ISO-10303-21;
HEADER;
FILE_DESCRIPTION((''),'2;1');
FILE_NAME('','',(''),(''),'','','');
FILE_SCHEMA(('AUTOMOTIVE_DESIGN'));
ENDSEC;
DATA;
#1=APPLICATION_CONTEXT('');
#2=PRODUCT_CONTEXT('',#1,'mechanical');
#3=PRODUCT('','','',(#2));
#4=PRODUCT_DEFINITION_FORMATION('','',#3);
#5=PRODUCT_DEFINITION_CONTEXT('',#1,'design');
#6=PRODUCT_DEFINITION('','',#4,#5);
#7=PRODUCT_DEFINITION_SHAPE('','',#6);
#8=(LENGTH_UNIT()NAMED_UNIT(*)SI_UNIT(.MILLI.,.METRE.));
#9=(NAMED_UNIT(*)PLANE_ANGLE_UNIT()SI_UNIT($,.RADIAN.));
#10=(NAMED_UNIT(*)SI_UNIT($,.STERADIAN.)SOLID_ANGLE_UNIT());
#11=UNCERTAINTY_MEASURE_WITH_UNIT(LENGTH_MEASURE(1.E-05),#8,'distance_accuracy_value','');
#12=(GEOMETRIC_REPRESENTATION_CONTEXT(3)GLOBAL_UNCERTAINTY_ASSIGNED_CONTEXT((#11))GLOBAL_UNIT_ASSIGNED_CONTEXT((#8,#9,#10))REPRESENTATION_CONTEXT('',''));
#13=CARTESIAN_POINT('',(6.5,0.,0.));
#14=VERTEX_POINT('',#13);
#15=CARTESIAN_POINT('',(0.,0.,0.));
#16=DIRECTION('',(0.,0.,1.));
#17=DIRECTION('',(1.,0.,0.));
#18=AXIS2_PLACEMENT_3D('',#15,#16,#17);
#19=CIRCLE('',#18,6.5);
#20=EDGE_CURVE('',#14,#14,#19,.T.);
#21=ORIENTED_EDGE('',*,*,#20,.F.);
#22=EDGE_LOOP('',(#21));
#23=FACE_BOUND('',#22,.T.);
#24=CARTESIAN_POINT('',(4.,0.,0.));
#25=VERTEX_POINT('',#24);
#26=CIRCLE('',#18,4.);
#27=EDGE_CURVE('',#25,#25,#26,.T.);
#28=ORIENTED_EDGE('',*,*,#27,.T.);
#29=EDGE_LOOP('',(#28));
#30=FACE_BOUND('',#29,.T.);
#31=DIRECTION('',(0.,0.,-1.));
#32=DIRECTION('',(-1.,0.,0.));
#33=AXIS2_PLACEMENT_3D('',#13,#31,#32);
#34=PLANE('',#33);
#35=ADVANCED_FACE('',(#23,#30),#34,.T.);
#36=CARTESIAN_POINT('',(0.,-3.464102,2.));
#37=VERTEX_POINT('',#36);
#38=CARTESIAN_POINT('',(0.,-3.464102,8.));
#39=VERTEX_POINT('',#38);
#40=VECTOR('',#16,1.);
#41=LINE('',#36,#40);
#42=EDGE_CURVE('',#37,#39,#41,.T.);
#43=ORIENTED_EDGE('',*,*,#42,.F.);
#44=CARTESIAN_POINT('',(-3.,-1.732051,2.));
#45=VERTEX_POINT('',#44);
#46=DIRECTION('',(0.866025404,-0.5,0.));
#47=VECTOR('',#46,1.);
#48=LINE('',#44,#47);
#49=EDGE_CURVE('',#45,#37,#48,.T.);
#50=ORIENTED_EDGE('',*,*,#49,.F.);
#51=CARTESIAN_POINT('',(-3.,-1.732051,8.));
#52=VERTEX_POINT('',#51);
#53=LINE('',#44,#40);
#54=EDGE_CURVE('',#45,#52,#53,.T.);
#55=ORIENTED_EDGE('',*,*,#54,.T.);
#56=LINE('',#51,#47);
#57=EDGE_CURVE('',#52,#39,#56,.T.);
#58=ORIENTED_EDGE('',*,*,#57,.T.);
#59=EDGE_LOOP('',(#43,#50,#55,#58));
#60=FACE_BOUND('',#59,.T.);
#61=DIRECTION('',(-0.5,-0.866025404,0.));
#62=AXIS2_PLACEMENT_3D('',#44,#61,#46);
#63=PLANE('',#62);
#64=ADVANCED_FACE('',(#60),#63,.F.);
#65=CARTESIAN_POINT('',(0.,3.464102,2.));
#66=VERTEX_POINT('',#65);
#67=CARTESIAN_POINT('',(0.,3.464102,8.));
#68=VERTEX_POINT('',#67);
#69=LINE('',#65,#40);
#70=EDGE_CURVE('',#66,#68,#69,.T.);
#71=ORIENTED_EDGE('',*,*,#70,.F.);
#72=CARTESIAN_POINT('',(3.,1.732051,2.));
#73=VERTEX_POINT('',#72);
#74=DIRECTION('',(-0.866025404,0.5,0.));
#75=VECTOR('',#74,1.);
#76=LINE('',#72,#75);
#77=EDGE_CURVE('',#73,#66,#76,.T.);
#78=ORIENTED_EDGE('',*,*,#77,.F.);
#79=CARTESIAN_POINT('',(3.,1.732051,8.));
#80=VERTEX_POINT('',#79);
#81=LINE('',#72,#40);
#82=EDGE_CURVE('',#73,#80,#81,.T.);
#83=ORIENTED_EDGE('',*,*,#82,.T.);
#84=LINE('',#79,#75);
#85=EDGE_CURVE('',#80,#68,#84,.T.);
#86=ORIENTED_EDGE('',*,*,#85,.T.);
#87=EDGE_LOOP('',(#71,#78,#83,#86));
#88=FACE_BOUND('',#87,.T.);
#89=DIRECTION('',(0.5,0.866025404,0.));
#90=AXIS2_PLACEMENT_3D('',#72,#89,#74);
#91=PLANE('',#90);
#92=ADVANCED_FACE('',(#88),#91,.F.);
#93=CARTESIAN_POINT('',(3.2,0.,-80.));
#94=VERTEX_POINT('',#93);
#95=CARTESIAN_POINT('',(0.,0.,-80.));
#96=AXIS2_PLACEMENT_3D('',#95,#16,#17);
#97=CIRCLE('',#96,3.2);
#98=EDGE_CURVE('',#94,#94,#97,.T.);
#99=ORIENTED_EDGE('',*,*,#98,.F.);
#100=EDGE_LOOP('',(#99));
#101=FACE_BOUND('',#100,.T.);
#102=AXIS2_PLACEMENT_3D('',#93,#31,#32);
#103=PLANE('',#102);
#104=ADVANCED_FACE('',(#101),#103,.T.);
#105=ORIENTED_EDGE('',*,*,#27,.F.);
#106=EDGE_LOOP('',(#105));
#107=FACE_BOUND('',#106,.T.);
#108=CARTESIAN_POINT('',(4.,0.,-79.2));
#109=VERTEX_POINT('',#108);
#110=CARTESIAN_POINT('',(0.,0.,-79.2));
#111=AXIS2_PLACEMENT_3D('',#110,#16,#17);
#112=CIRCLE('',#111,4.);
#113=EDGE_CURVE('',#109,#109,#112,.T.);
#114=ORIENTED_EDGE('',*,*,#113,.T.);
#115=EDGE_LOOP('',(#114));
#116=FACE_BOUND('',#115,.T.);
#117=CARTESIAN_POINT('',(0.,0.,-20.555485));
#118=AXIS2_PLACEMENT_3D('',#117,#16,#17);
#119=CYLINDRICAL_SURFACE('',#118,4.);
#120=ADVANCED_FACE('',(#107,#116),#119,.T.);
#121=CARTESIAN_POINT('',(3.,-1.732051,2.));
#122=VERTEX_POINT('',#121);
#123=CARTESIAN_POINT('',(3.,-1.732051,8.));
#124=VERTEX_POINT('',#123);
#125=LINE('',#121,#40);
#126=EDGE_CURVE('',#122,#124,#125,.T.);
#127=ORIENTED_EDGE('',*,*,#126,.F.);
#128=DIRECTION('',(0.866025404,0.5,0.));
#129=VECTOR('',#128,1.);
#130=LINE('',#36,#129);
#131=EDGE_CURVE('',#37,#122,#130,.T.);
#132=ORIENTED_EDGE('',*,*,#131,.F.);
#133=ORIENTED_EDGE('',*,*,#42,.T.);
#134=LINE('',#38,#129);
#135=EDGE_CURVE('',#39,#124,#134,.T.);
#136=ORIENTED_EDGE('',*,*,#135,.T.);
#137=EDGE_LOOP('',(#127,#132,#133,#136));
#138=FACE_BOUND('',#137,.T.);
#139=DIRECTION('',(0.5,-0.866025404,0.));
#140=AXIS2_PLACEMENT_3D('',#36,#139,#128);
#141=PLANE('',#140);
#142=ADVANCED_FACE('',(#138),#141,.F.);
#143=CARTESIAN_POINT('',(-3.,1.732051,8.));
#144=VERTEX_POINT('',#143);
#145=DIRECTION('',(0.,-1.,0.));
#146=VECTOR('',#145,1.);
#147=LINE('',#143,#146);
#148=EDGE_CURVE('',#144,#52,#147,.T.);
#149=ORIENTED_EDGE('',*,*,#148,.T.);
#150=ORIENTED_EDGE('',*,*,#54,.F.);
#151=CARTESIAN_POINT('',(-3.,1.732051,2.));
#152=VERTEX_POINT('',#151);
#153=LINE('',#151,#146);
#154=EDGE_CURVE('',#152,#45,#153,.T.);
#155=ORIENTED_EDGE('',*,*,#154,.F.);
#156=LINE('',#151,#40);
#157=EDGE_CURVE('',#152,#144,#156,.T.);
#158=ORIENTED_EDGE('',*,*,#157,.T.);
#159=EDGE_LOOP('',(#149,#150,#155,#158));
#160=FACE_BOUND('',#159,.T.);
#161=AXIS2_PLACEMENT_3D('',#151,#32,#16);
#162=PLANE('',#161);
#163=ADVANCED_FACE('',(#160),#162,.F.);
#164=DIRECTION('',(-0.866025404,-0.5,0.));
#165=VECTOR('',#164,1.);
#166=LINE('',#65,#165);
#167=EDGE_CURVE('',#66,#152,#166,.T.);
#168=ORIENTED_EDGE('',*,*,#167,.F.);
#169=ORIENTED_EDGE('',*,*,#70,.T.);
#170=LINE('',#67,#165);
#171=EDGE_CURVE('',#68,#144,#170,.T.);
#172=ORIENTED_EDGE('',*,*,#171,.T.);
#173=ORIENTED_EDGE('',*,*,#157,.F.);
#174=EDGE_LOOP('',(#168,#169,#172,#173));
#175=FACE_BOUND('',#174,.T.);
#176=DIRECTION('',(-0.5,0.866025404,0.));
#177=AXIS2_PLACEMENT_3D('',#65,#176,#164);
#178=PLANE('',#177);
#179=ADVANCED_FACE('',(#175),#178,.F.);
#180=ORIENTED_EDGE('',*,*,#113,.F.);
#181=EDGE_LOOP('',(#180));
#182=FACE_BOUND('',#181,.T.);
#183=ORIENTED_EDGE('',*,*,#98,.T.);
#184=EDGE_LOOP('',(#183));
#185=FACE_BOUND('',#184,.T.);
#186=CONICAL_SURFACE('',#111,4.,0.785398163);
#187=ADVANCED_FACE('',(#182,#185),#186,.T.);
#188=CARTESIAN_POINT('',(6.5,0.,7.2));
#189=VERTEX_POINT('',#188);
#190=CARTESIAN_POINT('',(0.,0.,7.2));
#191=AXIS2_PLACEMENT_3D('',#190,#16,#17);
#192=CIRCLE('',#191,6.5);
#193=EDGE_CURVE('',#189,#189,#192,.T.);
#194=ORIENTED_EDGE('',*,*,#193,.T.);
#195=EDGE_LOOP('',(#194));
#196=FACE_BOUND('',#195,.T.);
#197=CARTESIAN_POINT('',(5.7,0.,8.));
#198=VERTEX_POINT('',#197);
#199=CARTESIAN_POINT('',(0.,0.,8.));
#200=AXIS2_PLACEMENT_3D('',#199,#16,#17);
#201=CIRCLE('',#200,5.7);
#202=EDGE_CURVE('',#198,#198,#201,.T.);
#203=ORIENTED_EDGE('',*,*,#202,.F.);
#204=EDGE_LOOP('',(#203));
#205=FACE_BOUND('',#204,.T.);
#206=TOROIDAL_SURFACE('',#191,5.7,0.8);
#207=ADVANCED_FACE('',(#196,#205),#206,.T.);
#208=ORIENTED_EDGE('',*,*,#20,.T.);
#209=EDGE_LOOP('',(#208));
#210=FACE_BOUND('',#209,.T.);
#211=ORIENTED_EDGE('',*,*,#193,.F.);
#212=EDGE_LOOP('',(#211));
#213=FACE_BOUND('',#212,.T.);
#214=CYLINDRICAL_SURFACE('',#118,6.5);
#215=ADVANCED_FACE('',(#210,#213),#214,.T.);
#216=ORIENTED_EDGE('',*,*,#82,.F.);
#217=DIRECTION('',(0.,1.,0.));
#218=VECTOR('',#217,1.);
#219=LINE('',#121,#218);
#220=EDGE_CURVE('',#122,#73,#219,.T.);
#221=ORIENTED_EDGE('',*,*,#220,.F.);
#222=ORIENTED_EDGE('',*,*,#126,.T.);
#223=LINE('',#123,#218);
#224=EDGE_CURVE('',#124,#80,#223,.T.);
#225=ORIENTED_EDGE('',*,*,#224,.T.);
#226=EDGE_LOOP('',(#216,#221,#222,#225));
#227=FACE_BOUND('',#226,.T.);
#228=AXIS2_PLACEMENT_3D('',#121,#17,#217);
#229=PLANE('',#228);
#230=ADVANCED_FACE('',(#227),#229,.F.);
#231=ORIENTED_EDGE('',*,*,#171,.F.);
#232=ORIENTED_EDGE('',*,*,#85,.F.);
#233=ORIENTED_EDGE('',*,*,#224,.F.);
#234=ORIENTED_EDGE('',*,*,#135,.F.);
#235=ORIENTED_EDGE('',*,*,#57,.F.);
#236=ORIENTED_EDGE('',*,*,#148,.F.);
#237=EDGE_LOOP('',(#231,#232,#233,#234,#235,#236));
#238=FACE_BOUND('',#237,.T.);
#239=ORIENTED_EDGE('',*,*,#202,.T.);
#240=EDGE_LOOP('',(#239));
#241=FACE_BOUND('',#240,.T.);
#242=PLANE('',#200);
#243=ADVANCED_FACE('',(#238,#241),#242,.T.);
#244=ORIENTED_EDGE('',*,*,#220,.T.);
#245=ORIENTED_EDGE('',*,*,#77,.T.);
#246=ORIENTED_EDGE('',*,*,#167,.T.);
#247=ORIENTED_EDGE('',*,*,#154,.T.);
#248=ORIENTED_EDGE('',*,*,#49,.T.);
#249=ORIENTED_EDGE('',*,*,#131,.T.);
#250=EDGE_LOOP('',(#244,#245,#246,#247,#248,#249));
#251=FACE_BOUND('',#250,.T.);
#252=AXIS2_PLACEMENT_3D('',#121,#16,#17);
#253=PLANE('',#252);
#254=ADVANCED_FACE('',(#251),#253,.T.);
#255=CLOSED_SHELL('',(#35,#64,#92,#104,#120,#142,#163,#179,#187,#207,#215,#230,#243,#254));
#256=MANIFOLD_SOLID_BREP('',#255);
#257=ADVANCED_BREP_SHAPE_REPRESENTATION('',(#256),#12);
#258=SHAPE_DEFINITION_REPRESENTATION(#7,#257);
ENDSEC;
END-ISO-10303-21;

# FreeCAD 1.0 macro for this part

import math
import FreeCAD as App
import Part
import Sketcher
Q = App.Units.Quantity


def add_polygon(sketch, points):
    """Adds a closed chain of lines whose ends are joined by coincident constraints."""
    first, n = sketch.GeometryCount, len(points)
    for a, b in zip(points, points[1:] + points[:1]):
        sketch.addGeometry(Part.LineSegment(App.Vector(*a, 0), App.Vector(*b, 0)), False)
    for i in range(n):
        sketch.addConstraint(Sketcher.Constraint("Coincident", first + i, 2, first + (i + 1) % n, 1))

doc = App.newDocument("Part")
body = doc.addObject("PartDesign::Body", "Body")

sketch1 = body.newObject("Sketcher::SketchObject", "Sketch")
sketch1.AttachmentSupport = (doc.getObject("XZ_Plane"), [""])
sketch1.MapMode = "FlatFace"
sketch1.addGeometry(Part.LineSegment(App.Vector(0, -80, 0), App.Vector(0, 8, 0)), False)
sketch1.addGeometry(Part.LineSegment(App.Vector(0, 8, 0), App.Vector(5.7, 8, 0)), False)
sketch1.addGeometry(Part.ArcOfCircle(Part.Circle(App.Vector(5.7, 7.2, 0), App.Vector(0, 0, 1), 0.8), math.radians(0), math.radians(90)), False)
sketch1.addGeometry(Part.LineSegment(App.Vector(6.5, 7.2, 0), App.Vector(6.5, 0, 0)), False)
sketch1.addGeometry(Part.LineSegment(App.Vector(6.5, 0, 0), App.Vector(4, 0, 0)), False)
sketch1.addGeometry(Part.LineSegment(App.Vector(4, 0, 0), App.Vector(4, -79.2, 0)), False)
sketch1.addGeometry(Part.LineSegment(App.Vector(4, -79.2, 0), App.Vector(3.2, -80, 0)), False)
sketch1.addGeometry(Part.LineSegment(App.Vector(3.2, -80, 0), App.Vector(0, -80, 0)), False)
sketch1.addConstraint(Sketcher.Constraint("Coincident", 0, 2, 1, 1))
sketch1.addConstraint(Sketcher.Constraint("Tangent", 1, 2, 2, 2))
sketch1.addConstraint(Sketcher.Constraint("Tangent", 2, 1, 3, 1))
sketch1.addConstraint(Sketcher.Constraint("Coincident", 3, 2, 4, 1))
sketch1.addConstraint(Sketcher.Constraint("Coincident", 4, 2, 5, 1))
sketch1.addConstraint(Sketcher.Constraint("Coincident", 5, 2, 6, 1))
sketch1.addConstraint(Sketcher.Constraint("Coincident", 6, 2, 7, 1))
sketch1.addConstraint(Sketcher.Constraint("Coincident", 7, 2, 0, 1))
sketch1.addConstraint(Sketcher.Constraint("Vertical", 0))
sketch1.addConstraint(Sketcher.Constraint("Horizontal", 1))
sketch1.addConstraint(Sketcher.Constraint("Vertical", 3))
sketch1.addConstraint(Sketcher.Constraint("Horizontal", 4))
sketch1.addConstraint(Sketcher.Constraint("Vertical", 5))
sketch1.addConstraint(Sketcher.Constraint("Horizontal", 7))
sketch1.addConstraint(Sketcher.Constraint("PointOnObject", 0, 2, -2))
sketch1.addConstraint(Sketcher.Constraint("PointOnObject", 3, 2, -1))
sketch1.addConstraint(Sketcher.Constraint("Radius", 2, 0.8))
sketch1.addConstraint(Sketcher.Constraint("DistanceY", 0, 1, 0, 2, 88.0))
sketch1.addConstraint(Sketcher.Constraint("Angle", 6, Q("-135 deg")))
sketch1.addConstraint(Sketcher.Constraint("DistanceX", 1, 1, 1, 2, 5.7))
sketch1.addConstraint(Sketcher.Constraint("DistanceX", 4, 2, 4, 1, 2.5))
sketch1.addConstraint(Sketcher.Constraint("DistanceX", 7, 2, 7, 1, 3.2))
sketch1.addConstraint(Sketcher.Constraint("DistanceY", 3, 2, 3, 1, 7.2))
revolution = body.newObject("PartDesign::Revolution", "Revolution")
revolution.Profile = sketch1
revolution.ReferenceAxis = (sketch1, ["V_Axis"])
revolution.Angle = 360

sketch2 = body.newObject("Sketcher::SketchObject", "Sketch001")
sketch2.AttachmentSupport = (doc.getObject("XY_Plane"), [""])
sketch2.MapMode = "FlatFace"
sketch2.AttachmentOffset = App.Placement(App.Vector(0, 0, 8), App.Rotation())
add_polygon(sketch2, [(3, -1.7), (3, 1.7), (0, 3.5), (-3, 1.7), (-3, -1.7), (0, -3.5)])
sketch2.addConstraint(Sketcher.Constraint("Vertical", 0))
sketch2.addConstraint(Sketcher.Constraint("Vertical", 3))
sketch2.addConstraint(Sketcher.Constraint("Symmetric", 0, 2, 3, 2, -1, 1))
sketch2.addConstraint(Sketcher.Constraint("Symmetric", 1, 2, 4, 2, -1, 1))
sketch2.addConstraint(Sketcher.Constraint("PointOnObject", 1, 2, -2))
sketch2.addConstraint(Sketcher.Constraint("Parallel", 2, 5))
sketch2.addConstraint(Sketcher.Constraint("Horizontal", 0, 2, 2, 2))
sketch2.addConstraint(Sketcher.Constraint("Angle", 1, Q("150 deg")))
sketch2.addConstraint(Sketcher.Constraint("DistanceX", -1, 1, 0, 2, 3.0))
sketch2.addConstraint(Sketcher.Constraint("DistanceY", 0, 1, 0, 2, 3.464102))
pocket1 = body.newObject("PartDesign::Pocket", "Pocket")
pocket1.Profile = sketch2
pocket1.Length = 6

doc.recompute()
